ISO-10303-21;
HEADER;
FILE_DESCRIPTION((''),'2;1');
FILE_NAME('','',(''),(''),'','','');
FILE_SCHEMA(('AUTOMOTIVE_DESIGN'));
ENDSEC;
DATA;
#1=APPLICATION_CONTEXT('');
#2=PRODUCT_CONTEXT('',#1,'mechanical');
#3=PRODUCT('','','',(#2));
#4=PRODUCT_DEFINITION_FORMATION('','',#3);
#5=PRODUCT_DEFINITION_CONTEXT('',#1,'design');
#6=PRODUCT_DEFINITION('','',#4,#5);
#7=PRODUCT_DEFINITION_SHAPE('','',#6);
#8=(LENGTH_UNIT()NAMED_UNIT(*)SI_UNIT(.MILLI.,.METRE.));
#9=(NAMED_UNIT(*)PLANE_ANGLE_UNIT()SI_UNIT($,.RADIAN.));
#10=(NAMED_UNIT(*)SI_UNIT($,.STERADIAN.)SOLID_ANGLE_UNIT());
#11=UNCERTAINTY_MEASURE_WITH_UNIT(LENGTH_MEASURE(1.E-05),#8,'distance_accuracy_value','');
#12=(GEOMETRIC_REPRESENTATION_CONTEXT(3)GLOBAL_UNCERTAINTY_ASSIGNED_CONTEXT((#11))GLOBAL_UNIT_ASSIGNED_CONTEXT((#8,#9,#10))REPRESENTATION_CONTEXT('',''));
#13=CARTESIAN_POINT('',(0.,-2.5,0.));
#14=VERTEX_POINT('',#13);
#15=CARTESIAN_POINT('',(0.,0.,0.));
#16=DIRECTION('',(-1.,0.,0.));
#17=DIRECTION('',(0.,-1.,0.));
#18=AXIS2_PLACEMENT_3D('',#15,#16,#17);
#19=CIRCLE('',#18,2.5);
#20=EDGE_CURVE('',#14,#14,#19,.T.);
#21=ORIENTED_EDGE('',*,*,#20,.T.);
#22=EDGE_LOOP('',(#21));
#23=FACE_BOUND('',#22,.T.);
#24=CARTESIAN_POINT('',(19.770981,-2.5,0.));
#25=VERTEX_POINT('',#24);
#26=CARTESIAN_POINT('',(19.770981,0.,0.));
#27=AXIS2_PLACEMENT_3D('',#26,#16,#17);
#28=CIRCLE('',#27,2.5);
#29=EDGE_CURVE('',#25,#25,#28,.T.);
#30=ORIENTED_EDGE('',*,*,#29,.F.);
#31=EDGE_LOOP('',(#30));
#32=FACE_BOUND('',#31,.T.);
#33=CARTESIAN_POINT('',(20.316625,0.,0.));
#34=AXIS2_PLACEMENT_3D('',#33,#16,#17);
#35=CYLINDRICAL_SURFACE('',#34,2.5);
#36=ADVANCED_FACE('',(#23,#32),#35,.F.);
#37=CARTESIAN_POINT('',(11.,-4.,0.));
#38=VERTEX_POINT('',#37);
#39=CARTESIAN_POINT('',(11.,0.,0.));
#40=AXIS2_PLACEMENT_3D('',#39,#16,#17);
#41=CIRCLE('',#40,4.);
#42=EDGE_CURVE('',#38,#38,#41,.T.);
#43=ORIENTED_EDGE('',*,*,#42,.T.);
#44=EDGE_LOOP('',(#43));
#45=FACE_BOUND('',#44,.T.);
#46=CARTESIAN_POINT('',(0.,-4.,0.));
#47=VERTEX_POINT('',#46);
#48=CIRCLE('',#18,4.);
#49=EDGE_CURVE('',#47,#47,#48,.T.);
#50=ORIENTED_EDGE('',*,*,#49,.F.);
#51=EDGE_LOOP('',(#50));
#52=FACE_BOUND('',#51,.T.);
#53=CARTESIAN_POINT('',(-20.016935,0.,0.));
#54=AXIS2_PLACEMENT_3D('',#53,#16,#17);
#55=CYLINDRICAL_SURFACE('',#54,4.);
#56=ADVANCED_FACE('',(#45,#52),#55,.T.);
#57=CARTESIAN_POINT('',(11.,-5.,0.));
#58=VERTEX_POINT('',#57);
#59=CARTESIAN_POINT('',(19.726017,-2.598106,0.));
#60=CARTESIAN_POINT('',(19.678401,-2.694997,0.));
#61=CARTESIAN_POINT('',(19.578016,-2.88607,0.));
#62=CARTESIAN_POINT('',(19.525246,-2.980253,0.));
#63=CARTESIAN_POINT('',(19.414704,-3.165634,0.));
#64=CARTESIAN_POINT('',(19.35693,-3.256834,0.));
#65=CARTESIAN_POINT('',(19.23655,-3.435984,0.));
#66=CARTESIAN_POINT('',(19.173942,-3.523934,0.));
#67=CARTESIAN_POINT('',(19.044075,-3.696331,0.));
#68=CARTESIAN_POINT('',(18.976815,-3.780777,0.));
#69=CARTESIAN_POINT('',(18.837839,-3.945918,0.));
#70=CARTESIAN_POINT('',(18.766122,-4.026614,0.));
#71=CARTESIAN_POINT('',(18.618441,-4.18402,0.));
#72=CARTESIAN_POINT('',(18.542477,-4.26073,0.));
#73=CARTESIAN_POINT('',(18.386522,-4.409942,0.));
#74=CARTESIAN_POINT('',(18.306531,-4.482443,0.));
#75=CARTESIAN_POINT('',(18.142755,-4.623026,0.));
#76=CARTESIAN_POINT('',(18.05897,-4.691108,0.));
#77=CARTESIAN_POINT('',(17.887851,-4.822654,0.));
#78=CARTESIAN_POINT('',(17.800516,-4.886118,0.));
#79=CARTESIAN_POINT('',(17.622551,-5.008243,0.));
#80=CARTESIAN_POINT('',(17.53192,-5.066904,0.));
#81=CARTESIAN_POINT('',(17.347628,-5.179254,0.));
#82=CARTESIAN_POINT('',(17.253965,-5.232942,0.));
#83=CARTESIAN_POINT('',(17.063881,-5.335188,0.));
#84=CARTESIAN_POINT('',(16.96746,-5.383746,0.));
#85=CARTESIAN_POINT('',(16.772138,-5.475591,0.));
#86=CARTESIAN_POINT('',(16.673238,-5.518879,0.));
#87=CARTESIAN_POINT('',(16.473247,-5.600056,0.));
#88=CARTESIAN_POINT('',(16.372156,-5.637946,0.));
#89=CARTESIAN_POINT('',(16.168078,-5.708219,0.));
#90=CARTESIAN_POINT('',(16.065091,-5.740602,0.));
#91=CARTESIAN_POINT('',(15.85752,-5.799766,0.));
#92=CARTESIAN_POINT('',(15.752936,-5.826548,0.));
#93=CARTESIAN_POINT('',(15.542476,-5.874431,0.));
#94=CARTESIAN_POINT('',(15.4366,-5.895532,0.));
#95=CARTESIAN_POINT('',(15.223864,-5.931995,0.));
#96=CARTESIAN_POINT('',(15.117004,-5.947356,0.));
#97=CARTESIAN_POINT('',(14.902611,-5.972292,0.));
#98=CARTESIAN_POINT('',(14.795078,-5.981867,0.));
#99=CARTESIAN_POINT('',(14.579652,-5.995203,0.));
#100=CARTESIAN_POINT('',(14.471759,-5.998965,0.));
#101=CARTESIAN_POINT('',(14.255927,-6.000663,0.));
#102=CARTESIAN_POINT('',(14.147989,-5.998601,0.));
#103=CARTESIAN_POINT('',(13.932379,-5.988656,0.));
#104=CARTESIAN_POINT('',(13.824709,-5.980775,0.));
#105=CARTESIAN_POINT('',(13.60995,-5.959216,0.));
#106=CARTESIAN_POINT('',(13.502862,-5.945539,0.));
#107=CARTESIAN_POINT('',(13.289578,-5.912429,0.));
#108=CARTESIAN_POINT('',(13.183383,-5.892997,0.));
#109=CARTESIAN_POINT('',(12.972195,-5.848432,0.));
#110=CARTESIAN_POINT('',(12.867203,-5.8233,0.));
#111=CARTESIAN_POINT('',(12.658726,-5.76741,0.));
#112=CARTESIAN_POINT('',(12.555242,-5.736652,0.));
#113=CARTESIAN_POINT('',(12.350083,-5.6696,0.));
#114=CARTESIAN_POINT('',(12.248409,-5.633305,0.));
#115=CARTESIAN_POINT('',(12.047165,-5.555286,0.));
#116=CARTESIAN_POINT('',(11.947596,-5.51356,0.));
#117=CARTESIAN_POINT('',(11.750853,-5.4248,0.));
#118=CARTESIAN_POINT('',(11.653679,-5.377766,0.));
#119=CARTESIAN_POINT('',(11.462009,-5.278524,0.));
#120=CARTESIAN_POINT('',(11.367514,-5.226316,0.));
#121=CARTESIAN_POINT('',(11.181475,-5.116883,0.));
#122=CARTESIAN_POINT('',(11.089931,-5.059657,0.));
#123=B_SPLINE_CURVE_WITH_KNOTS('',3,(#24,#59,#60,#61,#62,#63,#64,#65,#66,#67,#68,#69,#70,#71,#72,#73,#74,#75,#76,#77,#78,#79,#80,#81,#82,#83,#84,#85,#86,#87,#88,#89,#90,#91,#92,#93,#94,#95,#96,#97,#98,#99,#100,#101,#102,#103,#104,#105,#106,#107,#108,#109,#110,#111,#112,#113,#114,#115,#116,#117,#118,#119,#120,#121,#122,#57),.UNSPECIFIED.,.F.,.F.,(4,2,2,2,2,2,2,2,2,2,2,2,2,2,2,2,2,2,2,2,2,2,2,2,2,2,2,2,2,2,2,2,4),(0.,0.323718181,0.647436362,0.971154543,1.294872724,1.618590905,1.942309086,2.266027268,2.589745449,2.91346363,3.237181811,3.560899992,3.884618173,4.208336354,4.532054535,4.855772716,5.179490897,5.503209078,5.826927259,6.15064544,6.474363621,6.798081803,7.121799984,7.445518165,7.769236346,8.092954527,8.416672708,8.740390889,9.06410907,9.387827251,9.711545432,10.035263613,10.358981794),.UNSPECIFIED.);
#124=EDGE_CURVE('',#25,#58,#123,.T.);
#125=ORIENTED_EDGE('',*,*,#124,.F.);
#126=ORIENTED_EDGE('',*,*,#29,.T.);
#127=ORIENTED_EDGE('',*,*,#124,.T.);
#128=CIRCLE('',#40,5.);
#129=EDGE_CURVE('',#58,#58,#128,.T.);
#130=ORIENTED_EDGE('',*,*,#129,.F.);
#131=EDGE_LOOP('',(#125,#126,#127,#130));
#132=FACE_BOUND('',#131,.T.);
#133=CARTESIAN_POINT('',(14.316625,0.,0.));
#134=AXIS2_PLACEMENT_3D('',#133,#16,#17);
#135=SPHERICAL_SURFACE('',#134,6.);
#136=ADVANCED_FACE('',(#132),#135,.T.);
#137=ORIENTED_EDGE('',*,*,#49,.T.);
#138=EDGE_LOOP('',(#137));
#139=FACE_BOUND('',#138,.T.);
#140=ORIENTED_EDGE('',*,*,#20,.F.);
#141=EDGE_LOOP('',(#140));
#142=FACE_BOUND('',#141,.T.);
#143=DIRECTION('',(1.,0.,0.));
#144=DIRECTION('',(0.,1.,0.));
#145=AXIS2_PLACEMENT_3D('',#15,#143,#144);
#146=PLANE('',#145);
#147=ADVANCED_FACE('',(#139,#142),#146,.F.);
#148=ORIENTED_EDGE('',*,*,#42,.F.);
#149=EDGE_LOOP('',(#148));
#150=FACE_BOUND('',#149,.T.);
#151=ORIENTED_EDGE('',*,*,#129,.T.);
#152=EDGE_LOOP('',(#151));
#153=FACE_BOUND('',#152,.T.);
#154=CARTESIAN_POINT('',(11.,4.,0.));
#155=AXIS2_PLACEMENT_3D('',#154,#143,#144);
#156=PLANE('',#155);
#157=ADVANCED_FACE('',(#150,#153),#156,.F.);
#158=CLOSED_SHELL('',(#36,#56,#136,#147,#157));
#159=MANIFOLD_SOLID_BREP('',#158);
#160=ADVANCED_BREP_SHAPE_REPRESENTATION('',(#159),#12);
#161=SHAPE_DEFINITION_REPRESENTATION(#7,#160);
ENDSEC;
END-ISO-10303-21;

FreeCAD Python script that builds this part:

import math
import FreeCAD as App
import Part
import Sketcher
from FreeCAD import Vector

doc = App.newDocument("Part")
body = doc.addObject("PartDesign::Body", "Body")

sketch1 = doc.addObject("Sketcher::SketchObject", "Sketch")
body.addObject(sketch1)
sketch1.AttachmentSupport = (doc.XY_Plane, [""])
sketch1.MapMode = "FlatFace"
sketch1.addGeometry(Part.LineSegment(Vector(0, 4, 0), Vector(0, 0, 0)), False)
sketch1.addGeometry(Part.LineSegment(Vector(0, 0, 0), Vector(20.316625, 0, 0)), False)
sketch1.addGeometry(Part.ArcOfCircle(Part.Circle(Vector(14.316625, 0, 0), Vector(0, 0, 1), 6), math.radians(0), math.radians(123.55731)), False)
sketch1.addGeometry(Part.LineSegment(Vector(11, 5, 0), Vector(11, 4, 0)), False)
sketch1.addGeometry(Part.LineSegment(Vector(11, 4, 0), Vector(0, 4, 0)), False)
sketch1.addConstraint(Sketcher.Constraint("Coincident", 0, 2, 1, 1))
sketch1.addConstraint(Sketcher.Constraint("Coincident", 1, 2, 2, 1))
sketch1.addConstraint(Sketcher.Constraint("Coincident", 2, 2, 3, 1))
sketch1.addConstraint(Sketcher.Constraint("Coincident", 3, 2, 4, 1))
sketch1.addConstraint(Sketcher.Constraint("Coincident", 4, 2, 0, 1))
sketch1.addConstraint(Sketcher.Constraint("Vertical", 0))
sketch1.addConstraint(Sketcher.Constraint("Horizontal", 1))
sketch1.addConstraint(Sketcher.Constraint("Vertical", 3))
sketch1.addConstraint(Sketcher.Constraint("Horizontal", 4))
sketch1.addConstraint(Sketcher.Constraint("Coincident", 0, 2, -1, 1))
sketch1.addConstraint(Sketcher.Constraint("PointOnObject", 2, 3, -1))
sketch1.addConstraint(Sketcher.Constraint("Radius", 2, 6.0))
sketch1.addConstraint(Sketcher.Constraint("DistanceX", 4, 2, 4, 1, 11.0))
sketch1.addConstraint(Sketcher.Constraint("DistanceY", 0, 2, 0, 1, 4.0))
sketch1.addConstraint(Sketcher.Constraint("DistanceY", 3, 2, 3, 1, 1.0))
revolution = doc.addObject("PartDesign::Revolution", "Revolution")
body.addObject(revolution)
revolution.Profile = sketch1
revolution.ReferenceAxis = (sketch1, ["H_Axis"])
revolution.Angle = 360

sketch2 = doc.addObject("Sketcher::SketchObject", "Sketch001")
body.addObject(sketch2)
sketch2.AttachmentSupport = (doc.YZ_Plane, [""])
sketch2.MapMode = "FlatFace"
sketch2.addGeometry(Part.Circle(Vector(0, 0, 0), Vector(0, 0, 1), 2.5), False)
sketch2.addConstraint(Sketcher.Constraint("Coincident", 0, 3, -1, 1))
sketch2.addConstraint(Sketcher.Constraint("Diameter", 0, 5.0))
pocket1 = doc.addObject("PartDesign::Pocket", "Pocket")
body.addObject(pocket1)
pocket1.Profile = sketch2
pocket1.Type = "ThroughAll"
pocket1.Reversed = True

doc.recompute()
